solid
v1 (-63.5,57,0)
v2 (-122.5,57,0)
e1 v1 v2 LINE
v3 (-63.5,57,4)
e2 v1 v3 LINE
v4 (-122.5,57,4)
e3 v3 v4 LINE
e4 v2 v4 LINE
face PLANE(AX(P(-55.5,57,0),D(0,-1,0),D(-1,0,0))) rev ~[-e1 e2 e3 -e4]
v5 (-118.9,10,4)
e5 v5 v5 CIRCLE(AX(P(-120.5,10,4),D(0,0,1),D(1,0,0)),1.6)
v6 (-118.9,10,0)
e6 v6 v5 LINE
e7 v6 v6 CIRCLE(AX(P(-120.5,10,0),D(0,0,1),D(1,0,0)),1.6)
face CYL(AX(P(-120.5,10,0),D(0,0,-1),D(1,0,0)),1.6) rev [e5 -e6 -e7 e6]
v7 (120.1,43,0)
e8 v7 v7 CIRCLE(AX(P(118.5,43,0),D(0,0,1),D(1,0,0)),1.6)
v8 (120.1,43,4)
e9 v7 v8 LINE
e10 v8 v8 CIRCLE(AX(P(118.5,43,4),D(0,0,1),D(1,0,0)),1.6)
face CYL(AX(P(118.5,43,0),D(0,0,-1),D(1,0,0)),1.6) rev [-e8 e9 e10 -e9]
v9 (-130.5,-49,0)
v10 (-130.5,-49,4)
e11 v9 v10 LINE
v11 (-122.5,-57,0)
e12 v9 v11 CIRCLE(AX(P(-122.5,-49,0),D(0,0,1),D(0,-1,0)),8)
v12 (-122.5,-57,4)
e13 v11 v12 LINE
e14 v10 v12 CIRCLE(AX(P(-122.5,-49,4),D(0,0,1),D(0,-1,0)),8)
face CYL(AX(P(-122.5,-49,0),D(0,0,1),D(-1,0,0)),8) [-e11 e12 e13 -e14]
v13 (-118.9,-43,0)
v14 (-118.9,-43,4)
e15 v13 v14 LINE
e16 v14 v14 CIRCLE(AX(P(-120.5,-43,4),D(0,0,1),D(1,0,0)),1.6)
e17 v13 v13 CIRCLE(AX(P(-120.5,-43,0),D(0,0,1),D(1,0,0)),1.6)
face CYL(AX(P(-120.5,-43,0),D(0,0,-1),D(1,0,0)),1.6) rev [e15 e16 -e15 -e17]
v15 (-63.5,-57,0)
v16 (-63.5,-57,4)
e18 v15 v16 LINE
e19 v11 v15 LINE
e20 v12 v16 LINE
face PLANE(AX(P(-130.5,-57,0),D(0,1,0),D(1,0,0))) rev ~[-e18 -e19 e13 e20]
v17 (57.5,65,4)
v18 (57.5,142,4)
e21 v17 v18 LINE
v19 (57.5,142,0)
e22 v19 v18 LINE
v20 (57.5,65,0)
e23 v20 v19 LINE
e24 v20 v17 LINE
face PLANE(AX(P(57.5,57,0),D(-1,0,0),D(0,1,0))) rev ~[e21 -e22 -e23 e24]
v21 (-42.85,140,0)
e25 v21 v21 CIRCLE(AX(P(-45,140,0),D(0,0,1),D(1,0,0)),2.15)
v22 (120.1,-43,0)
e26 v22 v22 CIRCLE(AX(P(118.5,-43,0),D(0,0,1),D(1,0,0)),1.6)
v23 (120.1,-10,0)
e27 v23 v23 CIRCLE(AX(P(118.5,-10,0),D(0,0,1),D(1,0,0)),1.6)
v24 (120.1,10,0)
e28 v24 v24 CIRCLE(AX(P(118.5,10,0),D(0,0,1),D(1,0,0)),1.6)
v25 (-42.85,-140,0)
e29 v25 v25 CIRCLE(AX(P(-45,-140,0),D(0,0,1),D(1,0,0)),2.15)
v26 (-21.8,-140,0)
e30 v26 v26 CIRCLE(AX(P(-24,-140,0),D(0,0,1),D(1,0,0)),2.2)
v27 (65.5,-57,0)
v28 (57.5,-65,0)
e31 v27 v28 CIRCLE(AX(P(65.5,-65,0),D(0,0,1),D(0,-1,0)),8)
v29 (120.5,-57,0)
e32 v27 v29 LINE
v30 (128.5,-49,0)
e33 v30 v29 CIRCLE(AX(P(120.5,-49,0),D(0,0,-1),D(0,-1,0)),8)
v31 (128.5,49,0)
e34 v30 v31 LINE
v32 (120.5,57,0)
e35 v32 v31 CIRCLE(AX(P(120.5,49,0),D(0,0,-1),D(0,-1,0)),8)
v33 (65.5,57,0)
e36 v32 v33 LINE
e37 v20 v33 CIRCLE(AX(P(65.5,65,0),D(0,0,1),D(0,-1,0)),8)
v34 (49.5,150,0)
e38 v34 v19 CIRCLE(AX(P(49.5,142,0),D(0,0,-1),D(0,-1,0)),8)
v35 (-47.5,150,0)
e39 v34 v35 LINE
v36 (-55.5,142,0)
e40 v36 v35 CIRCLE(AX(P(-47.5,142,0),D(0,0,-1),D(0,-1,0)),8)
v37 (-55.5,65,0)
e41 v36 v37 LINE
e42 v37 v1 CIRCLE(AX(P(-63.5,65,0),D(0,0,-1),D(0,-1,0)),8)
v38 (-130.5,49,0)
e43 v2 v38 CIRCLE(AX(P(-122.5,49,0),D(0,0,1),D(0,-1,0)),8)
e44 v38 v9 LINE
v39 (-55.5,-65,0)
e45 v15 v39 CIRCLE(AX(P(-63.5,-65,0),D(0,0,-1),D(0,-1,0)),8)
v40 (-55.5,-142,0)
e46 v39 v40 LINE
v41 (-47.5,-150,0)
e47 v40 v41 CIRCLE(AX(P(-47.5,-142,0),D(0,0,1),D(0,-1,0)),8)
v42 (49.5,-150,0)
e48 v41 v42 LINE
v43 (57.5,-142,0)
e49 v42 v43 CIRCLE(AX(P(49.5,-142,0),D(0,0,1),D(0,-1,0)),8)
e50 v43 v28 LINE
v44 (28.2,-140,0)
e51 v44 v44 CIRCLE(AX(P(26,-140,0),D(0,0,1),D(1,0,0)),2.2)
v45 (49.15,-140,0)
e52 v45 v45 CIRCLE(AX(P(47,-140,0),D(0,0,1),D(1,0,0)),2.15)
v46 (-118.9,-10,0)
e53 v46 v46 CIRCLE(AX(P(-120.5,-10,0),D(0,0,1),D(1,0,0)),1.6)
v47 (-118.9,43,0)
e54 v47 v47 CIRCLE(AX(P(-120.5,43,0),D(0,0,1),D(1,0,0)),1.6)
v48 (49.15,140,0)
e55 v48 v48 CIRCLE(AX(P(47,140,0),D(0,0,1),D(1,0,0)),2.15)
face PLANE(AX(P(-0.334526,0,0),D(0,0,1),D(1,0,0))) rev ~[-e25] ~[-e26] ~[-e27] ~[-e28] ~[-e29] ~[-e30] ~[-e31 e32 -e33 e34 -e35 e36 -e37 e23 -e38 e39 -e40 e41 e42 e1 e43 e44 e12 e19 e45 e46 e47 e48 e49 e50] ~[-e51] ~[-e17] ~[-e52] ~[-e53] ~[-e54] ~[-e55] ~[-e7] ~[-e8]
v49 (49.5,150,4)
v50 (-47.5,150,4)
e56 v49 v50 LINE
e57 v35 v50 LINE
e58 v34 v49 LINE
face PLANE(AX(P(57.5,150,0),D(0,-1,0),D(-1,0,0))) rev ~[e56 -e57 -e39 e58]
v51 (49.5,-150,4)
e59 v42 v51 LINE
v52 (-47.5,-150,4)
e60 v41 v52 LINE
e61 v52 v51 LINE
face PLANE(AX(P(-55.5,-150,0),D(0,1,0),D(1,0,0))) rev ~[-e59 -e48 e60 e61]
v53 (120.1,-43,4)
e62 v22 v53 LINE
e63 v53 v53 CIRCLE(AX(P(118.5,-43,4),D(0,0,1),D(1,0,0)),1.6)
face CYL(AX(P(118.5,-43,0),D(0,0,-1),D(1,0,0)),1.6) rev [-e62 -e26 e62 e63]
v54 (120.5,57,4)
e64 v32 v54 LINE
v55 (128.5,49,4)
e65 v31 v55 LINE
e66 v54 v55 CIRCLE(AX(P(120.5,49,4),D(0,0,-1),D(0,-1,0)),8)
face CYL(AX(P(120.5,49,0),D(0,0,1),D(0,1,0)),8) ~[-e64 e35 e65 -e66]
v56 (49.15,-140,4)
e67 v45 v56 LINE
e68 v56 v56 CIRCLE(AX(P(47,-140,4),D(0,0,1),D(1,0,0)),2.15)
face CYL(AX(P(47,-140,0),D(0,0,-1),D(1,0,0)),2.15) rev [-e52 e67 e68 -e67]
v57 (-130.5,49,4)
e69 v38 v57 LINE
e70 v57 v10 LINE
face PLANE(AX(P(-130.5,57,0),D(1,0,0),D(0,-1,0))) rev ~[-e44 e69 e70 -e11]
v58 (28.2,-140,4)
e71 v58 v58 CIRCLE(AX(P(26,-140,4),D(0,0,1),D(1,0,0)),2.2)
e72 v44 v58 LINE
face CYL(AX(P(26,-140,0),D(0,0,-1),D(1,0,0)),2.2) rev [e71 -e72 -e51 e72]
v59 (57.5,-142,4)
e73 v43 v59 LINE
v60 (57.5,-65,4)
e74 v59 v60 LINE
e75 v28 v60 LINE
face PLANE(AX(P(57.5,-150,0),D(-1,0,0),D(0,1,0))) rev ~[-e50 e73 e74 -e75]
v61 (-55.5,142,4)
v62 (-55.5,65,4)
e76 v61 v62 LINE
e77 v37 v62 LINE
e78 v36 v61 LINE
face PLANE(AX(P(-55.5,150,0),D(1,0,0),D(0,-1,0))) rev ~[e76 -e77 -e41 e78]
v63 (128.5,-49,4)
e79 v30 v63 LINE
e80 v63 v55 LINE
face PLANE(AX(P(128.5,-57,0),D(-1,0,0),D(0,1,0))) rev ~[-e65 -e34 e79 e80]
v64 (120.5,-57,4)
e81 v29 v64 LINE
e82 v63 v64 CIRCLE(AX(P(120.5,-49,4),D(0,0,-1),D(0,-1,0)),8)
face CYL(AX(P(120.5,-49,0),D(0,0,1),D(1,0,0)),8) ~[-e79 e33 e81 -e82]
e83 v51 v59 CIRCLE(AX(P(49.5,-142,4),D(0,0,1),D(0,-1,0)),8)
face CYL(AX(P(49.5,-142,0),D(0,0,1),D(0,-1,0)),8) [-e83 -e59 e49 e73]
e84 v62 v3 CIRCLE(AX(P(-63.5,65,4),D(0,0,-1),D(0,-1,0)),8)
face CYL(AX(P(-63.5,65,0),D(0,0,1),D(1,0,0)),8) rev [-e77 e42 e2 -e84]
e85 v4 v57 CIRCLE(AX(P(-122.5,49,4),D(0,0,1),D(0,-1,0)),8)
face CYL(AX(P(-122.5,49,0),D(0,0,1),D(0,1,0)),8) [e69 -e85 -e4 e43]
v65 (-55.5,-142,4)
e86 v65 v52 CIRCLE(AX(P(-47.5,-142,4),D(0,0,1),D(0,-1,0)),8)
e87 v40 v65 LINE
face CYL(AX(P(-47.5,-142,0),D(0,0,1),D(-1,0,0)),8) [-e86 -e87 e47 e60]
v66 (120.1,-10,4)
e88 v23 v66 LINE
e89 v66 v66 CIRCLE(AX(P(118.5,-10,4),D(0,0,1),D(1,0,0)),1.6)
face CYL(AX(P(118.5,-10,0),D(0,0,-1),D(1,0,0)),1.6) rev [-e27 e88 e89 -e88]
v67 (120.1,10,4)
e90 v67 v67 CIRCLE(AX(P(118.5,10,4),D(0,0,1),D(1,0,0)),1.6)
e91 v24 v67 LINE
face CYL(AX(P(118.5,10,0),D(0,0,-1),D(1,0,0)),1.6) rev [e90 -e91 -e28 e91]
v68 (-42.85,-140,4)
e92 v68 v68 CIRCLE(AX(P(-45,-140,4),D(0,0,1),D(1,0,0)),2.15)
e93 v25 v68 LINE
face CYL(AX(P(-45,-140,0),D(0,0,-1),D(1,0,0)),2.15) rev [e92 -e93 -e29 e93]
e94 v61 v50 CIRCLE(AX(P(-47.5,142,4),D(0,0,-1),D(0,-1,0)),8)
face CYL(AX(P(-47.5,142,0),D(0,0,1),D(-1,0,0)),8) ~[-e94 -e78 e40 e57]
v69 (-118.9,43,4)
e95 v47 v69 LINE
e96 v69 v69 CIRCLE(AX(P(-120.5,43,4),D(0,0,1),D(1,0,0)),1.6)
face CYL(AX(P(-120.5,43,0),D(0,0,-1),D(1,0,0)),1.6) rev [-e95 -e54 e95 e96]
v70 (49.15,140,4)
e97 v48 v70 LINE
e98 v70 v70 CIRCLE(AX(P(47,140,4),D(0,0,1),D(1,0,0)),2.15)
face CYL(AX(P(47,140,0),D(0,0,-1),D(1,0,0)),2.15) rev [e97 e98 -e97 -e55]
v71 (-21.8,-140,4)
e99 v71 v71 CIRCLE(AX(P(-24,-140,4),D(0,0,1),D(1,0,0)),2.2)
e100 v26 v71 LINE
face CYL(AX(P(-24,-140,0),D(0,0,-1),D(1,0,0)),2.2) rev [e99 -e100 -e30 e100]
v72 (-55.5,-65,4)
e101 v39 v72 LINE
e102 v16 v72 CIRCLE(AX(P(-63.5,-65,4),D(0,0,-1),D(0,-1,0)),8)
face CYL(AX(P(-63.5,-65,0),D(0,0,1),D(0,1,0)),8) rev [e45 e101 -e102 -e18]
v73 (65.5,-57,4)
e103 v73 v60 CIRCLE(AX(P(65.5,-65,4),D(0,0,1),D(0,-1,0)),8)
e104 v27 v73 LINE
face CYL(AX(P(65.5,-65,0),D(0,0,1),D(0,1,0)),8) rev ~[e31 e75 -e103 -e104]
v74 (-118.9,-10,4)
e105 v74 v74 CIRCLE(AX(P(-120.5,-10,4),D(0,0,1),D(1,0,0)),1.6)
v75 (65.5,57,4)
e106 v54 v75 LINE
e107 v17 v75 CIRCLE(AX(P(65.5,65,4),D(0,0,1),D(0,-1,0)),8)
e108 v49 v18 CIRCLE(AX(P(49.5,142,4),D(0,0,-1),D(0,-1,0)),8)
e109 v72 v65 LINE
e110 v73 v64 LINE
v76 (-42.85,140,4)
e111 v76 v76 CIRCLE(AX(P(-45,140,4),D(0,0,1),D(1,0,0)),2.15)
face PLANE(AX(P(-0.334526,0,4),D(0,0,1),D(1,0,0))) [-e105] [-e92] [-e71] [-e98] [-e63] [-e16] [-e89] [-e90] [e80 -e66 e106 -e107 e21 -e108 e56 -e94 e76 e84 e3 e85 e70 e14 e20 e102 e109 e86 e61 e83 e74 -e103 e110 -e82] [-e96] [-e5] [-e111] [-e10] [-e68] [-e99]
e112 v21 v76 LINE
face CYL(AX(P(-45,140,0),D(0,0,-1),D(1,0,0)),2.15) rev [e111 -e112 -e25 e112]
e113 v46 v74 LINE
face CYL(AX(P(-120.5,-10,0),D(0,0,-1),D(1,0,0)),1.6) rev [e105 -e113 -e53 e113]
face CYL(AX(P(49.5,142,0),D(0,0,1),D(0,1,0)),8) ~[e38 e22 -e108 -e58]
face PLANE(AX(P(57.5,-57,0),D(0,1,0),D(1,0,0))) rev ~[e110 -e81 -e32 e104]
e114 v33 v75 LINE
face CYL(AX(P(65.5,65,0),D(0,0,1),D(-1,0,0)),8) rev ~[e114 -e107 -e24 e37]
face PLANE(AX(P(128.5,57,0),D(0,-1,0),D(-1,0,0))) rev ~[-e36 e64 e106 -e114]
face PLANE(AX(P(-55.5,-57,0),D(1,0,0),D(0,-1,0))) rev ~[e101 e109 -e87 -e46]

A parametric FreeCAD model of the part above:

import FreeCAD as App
import Part
import Sketcher
Q = App.Units.Quantity


def edges_at(feature, points):
    """Names of the edges that pass closest to the given points."""
    edges = feature.Shape.Edges
    near = lambda p: min(range(len(edges)), key=lambda i: edges[i].distToShape(Part.Vertex(*p))[0])
    return sorted({f"Edge{near(p) + 1}" for p in points})


def add_polygon(sketch, points):
    """Adds a closed chain of lines whose ends are joined by coincident constraints."""
    first, n = sketch.GeometryCount, len(points)
    for a, b in zip(points, points[1:] + points[:1]):
        sketch.addGeometry(Part.LineSegment(App.Vector(*a, 0), App.Vector(*b, 0)), False)
    for i in range(n):
        sketch.addConstraint(Sketcher.Constraint("Coincident", first + i, 2, first + (i + 1) % n, 1))

doc = App.newDocument("Part")
body = doc.addObject("PartDesign::Body", "Body")

sketch1 = doc.addObject("Sketcher::SketchObject", "Sketch")
body.addObject(sketch1)
sketch1.AttachmentSupport = (doc.XY_Plane, [""])
sketch1.MapMode = "FlatFace"
add_polygon(sketch1, [(-55.5, 150), (-55.5, 57), (-130.5, 57), (-130.5, -57), (-55.5, -57), (-55.5, -150), (57.5, -150), (57.5, -57), (128.5, -57), (128.5, 57), (57.5, 57), (57.5, 150)])
sketch1.addGeometry(Part.Circle(App.Vector(-45, -140, 0), App.Vector(0, 0, 1), 2.1), False)
sketch1.addGeometry(Part.Circle(App.Vector(-24, -140, 0), App.Vector(0, 0, 1), 2.2), False)
sketch1.addGeometry(Part.Circle(App.Vector(-120.5, -43, 0), App.Vector(0, 0, 1), 1.6), False)
sketch1.addGeometry(Part.Circle(App.Vector(-120.5, -10, 0), App.Vector(0, 0, 1), 1.6), False)
sketch1.addGeometry(Part.Circle(App.Vector(26, -140, 0), App.Vector(0, 0, 1), 2.2), False)
sketch1.addGeometry(Part.Circle(App.Vector(47, -140, 0), App.Vector(0, 0, 1), 2.1), False)
sketch1.addGeometry(Part.Circle(App.Vector(118.5, -43, 0), App.Vector(0, 0, 1), 1.6), False)
sketch1.addGeometry(Part.Circle(App.Vector(118.5, -10, 0), App.Vector(0, 0, 1), 1.6), False)
sketch1.addGeometry(Part.Circle(App.Vector(-120.5, 10, 0), App.Vector(0, 0, 1), 1.6), False)
sketch1.addGeometry(Part.Circle(App.Vector(-120.5, 43, 0), App.Vector(0, 0, 1), 1.6), False)
sketch1.addGeometry(Part.Circle(App.Vector(-45, 140, 0), App.Vector(0, 0, 1), 2.1), False)
sketch1.addGeometry(Part.Circle(App.Vector(118.5, 10, 0), App.Vector(0, 0, 1), 1.6), False)
sketch1.addGeometry(Part.Circle(App.Vector(118.5, 43, 0), App.Vector(0, 0, 1), 1.6), False)
sketch1.addGeometry(Part.Circle(App.Vector(47, 140, 0), App.Vector(0, 0, 1), 2.1), False)
sketch1.addConstraint(Sketcher.Constraint("Vertical", 0))
sketch1.addConstraint(Sketcher.Constraint("Horizontal", 1))
sketch1.addConstraint(Sketcher.Constraint("Vertical", 2))
sketch1.addConstraint(Sketcher.Constraint("Horizontal", 3))
sketch1.addConstraint(Sketcher.Constraint("Vertical", 4))
sketch1.addConstraint(Sketcher.Constraint("Horizontal", 5))
sketch1.addConstraint(Sketcher.Constraint("Vertical", 6))
sketch1.addConstraint(Sketcher.Constraint("Horizontal", 7))
sketch1.addConstraint(Sketcher.Constraint("Vertical", 8))
sketch1.addConstraint(Sketcher.Constraint("Horizontal", 9))
sketch1.addConstraint(Sketcher.Constraint("Vertical", 10))
sketch1.addConstraint(Sketcher.Constraint("Horizontal", 11))
sketch1.addConstraint(Sketcher.Constraint("Equal", 14, 15))
sketch1.addConstraint(Sketcher.Constraint("Equal", 13, 16))
sketch1.addConstraint(Sketcher.Constraint("Equal", 12, 17))
sketch1.addConstraint(Sketcher.Constraint("Equal", 15, 18))
sketch1.addConstraint(Sketcher.Constraint("Equal", 18, 19))
sketch1.addConstraint(Sketcher.Constraint("Equal", 19, 20))
sketch1.addConstraint(Sketcher.Constraint("Equal", 20, 21))
sketch1.addConstraint(Sketcher.Constraint("Equal", 17, 22))
sketch1.addConstraint(Sketcher.Constraint("Equal", 21, 23))
sketch1.addConstraint(Sketcher.Constraint("Equal", 23, 24))
sketch1.addConstraint(Sketcher.Constraint("Equal", 22, 25))
sketch1.addConstraint(Sketcher.Constraint("Symmetric", 15, 3, 20, 3, -1))
sketch1.addConstraint(Sketcher.Constraint("Symmetric", 14, 3, 21, 3, -1))
sketch1.addConstraint(Sketcher.Constraint("Symmetric", 12, 3, 22, 3, -1))
sketch1.addConstraint(Sketcher.Constraint("Symmetric", 19, 3, 23, 3, -1))
sketch1.addConstraint(Sketcher.Constraint("Symmetric", 18, 3, 24, 3, -1))
sketch1.addConstraint(Sketcher.Constraint("Symmetric", 17, 3, 25, 3, -1))
sketch1.addConstraint(Sketcher.Constraint("Symmetric", 0, 2, 3, 2, -1))
sketch1.addConstraint(Sketcher.Constraint("Symmetric", 6, 2, 9, 2, -1))
sketch1.addConstraint(Sketcher.Constraint("Horizontal", 12, 3, 13, 3))
sketch1.addConstraint(Sketcher.Constraint("Horizontal", 13, 3, 16, 3))
sketch1.addConstraint(Sketcher.Constraint("Horizontal", 16, 3, 17, 3))
sketch1.addConstraint(Sketcher.Constraint("Horizontal", 14, 3, 18, 3))
sketch1.addConstraint(Sketcher.Constraint("Horizontal", 15, 3, 19, 3))
sketch1.addConstraint(Sketcher.Constraint("Horizontal", 3, 2, 6, 2))
sketch1.addConstraint(Sketcher.Constraint("Vertical", 14, 3, 15, 3))
sketch1.addConstraint(Sketcher.Constraint("Vertical", 18, 3, 19, 3))
sketch1.addConstraint(Sketcher.Constraint("Equal", 0, 4))
sketch1.addConstraint(Sketcher.Constraint("Diameter", 12, Q("4.3 mm")))
sketch1.addConstraint(Sketcher.Constraint("Diameter", 13, Q("4.4 mm")))
sketch1.addConstraint(Sketcher.Constraint("Diameter", 14, Q("3.2 mm")))
sketch1.addConstraint(Sketcher.Constraint("DistanceX", 1, 2, 1, 1, Q("75 mm")))
sketch1.addConstraint(Sketcher.Constraint("DistanceX", 5, 1, 5, 2, Q("113 mm")))
sketch1.addConstraint(Sketcher.Constraint("DistanceX", 7, 1, 7, 2, Q("71 mm")))
sketch1.addConstraint(Sketcher.Constraint("DistanceY", 0, 2, 0, 1, Q("93 mm")))
sketch1.addConstraint(Sketcher.Constraint("DistanceY", 2, 2, 2, 1, Q("114 mm")))
sketch1.addConstraint(Sketcher.Constraint("DistanceX", 12, 3, -1, 1, Q("45 mm")))
sketch1.addConstraint(Sketcher.Constraint("DistanceY", 12, 3, -1, 1, Q("140 mm")))
sketch1.addConstraint(Sketcher.Constraint("DistanceX", 13, 3, -1, 1, Q("24 mm")))
sketch1.addConstraint(Sketcher.Constraint("DistanceY", 14, 3, -1, 1, Q("43 mm")))
sketch1.addConstraint(Sketcher.Constraint("DistanceY", 15, 3, -1, 1, Q("10 mm")))
sketch1.addConstraint(Sketcher.Constraint("DistanceX", -1, 1, 16, 3, Q("26 mm")))
sketch1.addConstraint(Sketcher.Constraint("DistanceX", -1, 1, 17, 3, Q("47 mm")))
sketch1.addConstraint(Sketcher.Constraint("DistanceX", 14, 3, 18, 3, Q("239 mm")))
sketch1.addConstraint(Sketcher.Constraint("DistanceX", 21, 3, 0, 2, Q("65 mm")))
sketch1.addConstraint(Sketcher.Constraint("DistanceX", 14, 3, -1, 1, Q("120.5 mm")))
pad1 = doc.addObject("PartDesign::Pad", "Pad")
body.addObject(pad1)
pad1.Profile = sketch1
pad1.Length = 4
doc.recompute()

fillet = doc.addObject("PartDesign::Fillet", "Fillet")
body.addObject(fillet)
fillet.Base = (pad1, edges_at(pad1, [
    (-130.5, 57, 2),
    (-55.5, 57, 2),
    (-55.5, 150, 2),
    (57.5, 150, 2),
    (57.5, 57, 2),
    (128.5, 57, 2),
    (128.5, -57, 2),
    (57.5, -57, 2),
    (57.5, -150, 2),
    (-55.5, -150, 2),
    (-55.5, -57, 2),
    (-130.5, -57, 2),
]))
fillet.Radius = 8

doc.recompute()
